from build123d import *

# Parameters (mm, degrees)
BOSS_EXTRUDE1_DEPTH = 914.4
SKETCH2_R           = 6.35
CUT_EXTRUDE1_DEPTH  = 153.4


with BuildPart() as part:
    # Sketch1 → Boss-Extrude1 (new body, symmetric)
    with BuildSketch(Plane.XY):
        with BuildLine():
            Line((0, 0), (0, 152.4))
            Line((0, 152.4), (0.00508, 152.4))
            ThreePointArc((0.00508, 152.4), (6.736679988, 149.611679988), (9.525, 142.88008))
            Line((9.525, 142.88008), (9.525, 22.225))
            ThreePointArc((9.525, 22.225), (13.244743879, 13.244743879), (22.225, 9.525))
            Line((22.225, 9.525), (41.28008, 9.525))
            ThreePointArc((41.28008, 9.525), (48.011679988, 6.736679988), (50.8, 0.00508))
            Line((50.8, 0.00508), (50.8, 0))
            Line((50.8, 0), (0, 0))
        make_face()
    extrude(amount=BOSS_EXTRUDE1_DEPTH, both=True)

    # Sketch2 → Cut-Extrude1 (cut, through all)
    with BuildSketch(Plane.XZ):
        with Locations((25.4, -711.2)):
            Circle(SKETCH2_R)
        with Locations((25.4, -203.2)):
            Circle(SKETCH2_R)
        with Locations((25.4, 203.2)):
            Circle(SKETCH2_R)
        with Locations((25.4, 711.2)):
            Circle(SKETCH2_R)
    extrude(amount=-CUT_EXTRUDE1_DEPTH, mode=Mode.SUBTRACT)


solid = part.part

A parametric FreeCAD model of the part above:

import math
import FreeCAD as App
import Part
import Sketcher

V = App.Vector
Q = App.Units.Quantity

doc = App.newDocument("Part")
body = doc.addObject("PartDesign::Body", "Body")

# Sketch on XY plane
sketch1 = body.newObject("Sketcher::SketchObject", "Sketch")
sketch1.AttachmentSupport = (doc.getObject("XY_Plane"), [""])
sketch1.MapMode = "FlatFace"
sketch1.addGeometry(Part.LineSegment(V(0, 152.4, 0), V(0, 0, 0)), False)
sketch1.addGeometry(Part.LineSegment(V(0, 0, 0), V(50.8, 0, 0)), False)
sketch1.addGeometry(Part.LineSegment(V(50.8, 0, 0), V(50.8, 0.005, 0)), False)
sketch1.addGeometry(Part.ArcOfCircle(Part.Circle(V(41.28, 0.005, 0), V(0, 0, 1), 9.52), math.radians(0), math.radians(90)), False)
sketch1.addGeometry(Part.LineSegment(V(41.28, 9.525, 0), V(22.225, 9.525, 0)), False)
sketch1.addGeometry(Part.ArcOfCircle(Part.Circle(V(22.225, 22.225, 0), V(0, 0, 1), 12.7), math.radians(180), math.radians(270)), False)
sketch1.addGeometry(Part.LineSegment(V(9.525, 22.225, 0), V(9.525, 142.88, 0)), False)
sketch1.addGeometry(Part.ArcOfCircle(Part.Circle(V(0.005, 142.88, 0), V(0, 0, 1), 9.52), math.radians(0), math.radians(90)), False)
sketch1.addGeometry(Part.LineSegment(V(0.005, 152.4, 0), V(0, 152.4, 0)), False)
sketch1.addConstraint(Sketcher.Constraint("Coincident", 0, 2, 1, 1))
sketch1.addConstraint(Sketcher.Constraint("Coincident", 1, 2, 2, 1))
sketch1.addConstraint(Sketcher.Constraint("Tangent", 2, 2, 3, 1))
sketch1.addConstraint(Sketcher.Constraint("Tangent", 3, 2, 4, 1))
sketch1.addConstraint(Sketcher.Constraint("Tangent", 4, 2, 5, 2))
sketch1.addConstraint(Sketcher.Constraint("Tangent", 5, 1, 6, 1))
sketch1.addConstraint(Sketcher.Constraint("Tangent", 6, 2, 7, 1))
sketch1.addConstraint(Sketcher.Constraint("Tangent", 7, 2, 8, 1))
sketch1.addConstraint(Sketcher.Constraint("Coincident", 8, 2, 0, 1))
sketch1.addConstraint(Sketcher.Constraint("Vertical", 0))
sketch1.addConstraint(Sketcher.Constraint("Horizontal", 1))
sketch1.addConstraint(Sketcher.Constraint("Horizontal", 4))
sketch1.addConstraint(Sketcher.Constraint("Vertical", 6))
sketch1.addConstraint(Sketcher.Constraint("Coincident", 0, 2, -1, 1))
sketch1.addConstraint(Sketcher.Constraint("Equal", 3, 7))
sketch1.addConstraint(Sketcher.Constraint("Horizontal", 3, 3, 2, 2))
sketch1.addConstraint(Sketcher.Constraint("Equal", 8, 2))
sketch1.addConstraint(Sketcher.Constraint("Radius", 5, Q("0.5 in")))
sketch1.addConstraint(Sketcher.Constraint("DistanceX", 1, 1, 1, 2, Q("2 in")))
sketch1.addConstraint(Sketcher.Constraint("DistanceY", 0, 2, 0, 1, Q("6 in")))
sketch1.addConstraint(Sketcher.Constraint("Radius", 3, Q("0.3748 in")))
sketch1.addConstraint(Sketcher.Constraint("DistanceX", 4, 2, 4, 1, Q("0.7502 in")))
sketch1.addConstraint(Sketcher.Constraint("DistanceX", 8, 2, 8, 1, Q("0.0002 in")))
pad1 = body.newObject("PartDesign::Pad", "Pad")
pad1.Profile = sketch1
pad1.Length = Q("72 in")
pad1.Midplane = True

# Sketch on XZ plane
sketch2 = body.newObject("Sketcher::SketchObject", "Sketch001")
sketch2.AttachmentSupport = (doc.getObject("XZ_Plane"), [""])
sketch2.MapMode = "FlatFace"
sketch2.addGeometry(Part.Circle(V(25, -711, 0), V(0, 0, 1), 6), False)
sketch2.addGeometry(Part.Circle(V(25, -203, 0), V(0, 0, 1), 6), False)
sketch2.addGeometry(Part.Circle(V(25, 203, 0), V(0, 0, 1), 6), False)
sketch2.addGeometry(Part.Circle(V(25, 711, 0), V(0, 0, 1), 6), False)
sketch2.addConstraint(Sketcher.Constraint("Equal", 0, 1))
sketch2.addConstraint(Sketcher.Constraint("Equal", 1, 2))
sketch2.addConstraint(Sketcher.Constraint("Equal", 2, 3))
sketch2.addConstraint(Sketcher.Constraint("Symmetric", 1, 3, 2, 3, -1))
sketch2.addConstraint(Sketcher.Constraint("Symmetric", 0, 3, 3, 3, -1))
sketch2.addConstraint(Sketcher.Constraint("Vertical", 0, 3, 1, 3))
sketch2.addConstraint(Sketcher.Constraint("Diameter", 0, Q("0.5 in")))
sketch2.addConstraint(Sketcher.Constraint("DistanceX", -1, 1, 0, 3, Q("1 in")))
sketch2.addConstraint(Sketcher.Constraint("DistanceY", 0, 3, -1, 1, Q("28 in")))
sketch2.addConstraint(Sketcher.Constraint("DistanceY", 1, 3, -1, 1, Q("8 in")))
pocket1 = body.newObject("PartDesign::Pocket", "Pocket")
pocket1.Profile = sketch2
pocket1.Type = "ThroughAll"

doc.recompute()
